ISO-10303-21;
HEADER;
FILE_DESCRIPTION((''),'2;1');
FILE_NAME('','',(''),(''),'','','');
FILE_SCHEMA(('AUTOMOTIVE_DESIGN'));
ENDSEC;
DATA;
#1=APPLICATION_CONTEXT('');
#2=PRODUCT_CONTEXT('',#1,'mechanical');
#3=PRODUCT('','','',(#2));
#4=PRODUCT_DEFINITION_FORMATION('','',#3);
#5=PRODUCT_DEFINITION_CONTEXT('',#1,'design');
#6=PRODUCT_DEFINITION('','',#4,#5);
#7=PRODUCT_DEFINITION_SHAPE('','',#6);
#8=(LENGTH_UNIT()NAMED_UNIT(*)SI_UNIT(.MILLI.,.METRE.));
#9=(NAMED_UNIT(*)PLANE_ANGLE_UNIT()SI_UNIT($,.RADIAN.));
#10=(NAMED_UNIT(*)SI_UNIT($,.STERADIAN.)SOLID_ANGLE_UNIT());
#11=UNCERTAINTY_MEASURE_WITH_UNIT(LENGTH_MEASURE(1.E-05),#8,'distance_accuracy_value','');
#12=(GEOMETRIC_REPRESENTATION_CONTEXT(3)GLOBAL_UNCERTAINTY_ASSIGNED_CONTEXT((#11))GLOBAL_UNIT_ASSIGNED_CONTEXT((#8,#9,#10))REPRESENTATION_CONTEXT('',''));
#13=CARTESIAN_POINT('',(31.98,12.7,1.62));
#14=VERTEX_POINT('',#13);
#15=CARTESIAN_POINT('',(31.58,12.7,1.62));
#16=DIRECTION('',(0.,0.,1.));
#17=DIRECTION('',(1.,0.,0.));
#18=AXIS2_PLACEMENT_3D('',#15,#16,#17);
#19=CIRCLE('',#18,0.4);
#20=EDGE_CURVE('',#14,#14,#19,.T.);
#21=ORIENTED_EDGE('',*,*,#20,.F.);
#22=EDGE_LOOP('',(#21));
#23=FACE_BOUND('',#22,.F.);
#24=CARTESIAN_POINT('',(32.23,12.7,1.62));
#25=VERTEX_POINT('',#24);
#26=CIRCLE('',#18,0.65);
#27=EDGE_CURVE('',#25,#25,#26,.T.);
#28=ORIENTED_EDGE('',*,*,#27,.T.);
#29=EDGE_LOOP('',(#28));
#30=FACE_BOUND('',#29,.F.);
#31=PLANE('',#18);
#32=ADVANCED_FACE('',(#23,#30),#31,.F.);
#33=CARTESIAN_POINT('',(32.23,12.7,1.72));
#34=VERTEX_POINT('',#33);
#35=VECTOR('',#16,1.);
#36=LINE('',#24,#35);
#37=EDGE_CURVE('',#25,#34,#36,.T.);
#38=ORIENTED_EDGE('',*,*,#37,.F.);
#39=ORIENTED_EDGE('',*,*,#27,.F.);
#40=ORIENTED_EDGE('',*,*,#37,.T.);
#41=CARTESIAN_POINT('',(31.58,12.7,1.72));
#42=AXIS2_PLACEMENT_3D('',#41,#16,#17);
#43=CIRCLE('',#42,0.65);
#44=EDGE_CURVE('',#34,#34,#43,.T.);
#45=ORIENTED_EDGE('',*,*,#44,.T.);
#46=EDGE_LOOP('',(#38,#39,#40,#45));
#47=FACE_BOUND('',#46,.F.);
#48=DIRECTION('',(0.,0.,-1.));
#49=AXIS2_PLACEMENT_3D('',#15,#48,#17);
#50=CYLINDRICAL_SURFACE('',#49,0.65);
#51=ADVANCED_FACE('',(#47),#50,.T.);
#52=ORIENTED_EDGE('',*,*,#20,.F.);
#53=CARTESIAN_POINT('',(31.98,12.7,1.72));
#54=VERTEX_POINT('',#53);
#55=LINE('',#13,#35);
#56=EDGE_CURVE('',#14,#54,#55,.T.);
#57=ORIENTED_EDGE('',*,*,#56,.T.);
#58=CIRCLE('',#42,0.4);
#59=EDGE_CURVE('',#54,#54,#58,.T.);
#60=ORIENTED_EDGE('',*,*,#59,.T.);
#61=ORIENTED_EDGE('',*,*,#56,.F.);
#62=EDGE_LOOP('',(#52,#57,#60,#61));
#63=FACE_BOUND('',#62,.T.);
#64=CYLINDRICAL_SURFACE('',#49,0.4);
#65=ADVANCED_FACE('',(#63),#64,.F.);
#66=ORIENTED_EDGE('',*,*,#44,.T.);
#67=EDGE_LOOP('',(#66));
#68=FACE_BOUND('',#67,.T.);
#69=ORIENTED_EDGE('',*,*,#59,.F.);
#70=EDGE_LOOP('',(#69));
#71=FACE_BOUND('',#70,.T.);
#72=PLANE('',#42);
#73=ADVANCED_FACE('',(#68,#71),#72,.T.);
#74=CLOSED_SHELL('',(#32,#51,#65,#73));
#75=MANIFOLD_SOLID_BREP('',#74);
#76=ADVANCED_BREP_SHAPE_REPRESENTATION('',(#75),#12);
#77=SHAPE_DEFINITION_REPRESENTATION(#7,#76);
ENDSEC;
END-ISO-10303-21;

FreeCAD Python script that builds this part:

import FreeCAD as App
import Part
import Sketcher
Q = App.Units.Quantity

doc = App.newDocument("Part")
body = doc.addObject("PartDesign::Body", "Body")

sketch1 = body.newObject("Sketcher::SketchObject", "Sketch")
sketch1.AttachmentSupport = (doc.getObject("XY_Plane"), [""])
sketch1.MapMode = "FlatFace"
sketch1.AttachmentOffset = App.Placement(App.Vector(0, 0, 1.62), App.Rotation())
sketch1.addGeometry(Part.Circle(App.Vector(0, 0, 0), App.Vector(0, 0, 1), 0.4), False)
sketch1.addConstraint([
    Sketcher.Constraint("Coincident", 0, 3, -1, 1),
    Sketcher.Constraint("Diameter", 0, Q("0.8 mm")),
])
pad1 = body.newObject("PartDesign::Pad", "Pad")
pad1.Profile = sketch1
pad1.Length = 0.1
body2 = doc.addObject("PartDesign::Body", "Body001")

sketch2 = body2.newObject("Sketcher::SketchObject", "Sketch001")
sketch2.AttachmentSupport = (doc.getObject("XY_Plane001"), [""])
sketch2.MapMode = "FlatFace"
sketch2.AttachmentOffset = App.Placement(App.Vector(0, 0, 1.62), App.Rotation())
sketch2.addGeometry(Part.Circle(App.Vector(0, 0, 0), App.Vector(0, 0, 1), 0.7), False)
sketch2.addConstraint([
    Sketcher.Constraint("Coincident", 0, 3, -1, 1),
    Sketcher.Constraint("Diameter", 0, Q("1.3 mm")),
])
pad2 = body2.newObject("PartDesign::Pad", "Pad001")
pad2.Profile = sketch2
pad2.Length = 0.1
doc.recompute()

boolean = body2.newObject("PartDesign::Boolean", "Boolean")
boolean.Type = "Cut"
boolean.addObjects([body])
body3 = doc.addObject("PartDesign::Body", "Body002")
doc.recompute()

body2.Placement = App.Placement(App.Vector(31.58, 12.7, 0), App.Rotation(App.Vector(0, 0, 1), 0))
boolean2 = body3.newObject("PartDesign::Boolean", "Boolean001")
boolean2.Type = "Fuse"
boolean2.addObjects([body2])

doc.recompute()
